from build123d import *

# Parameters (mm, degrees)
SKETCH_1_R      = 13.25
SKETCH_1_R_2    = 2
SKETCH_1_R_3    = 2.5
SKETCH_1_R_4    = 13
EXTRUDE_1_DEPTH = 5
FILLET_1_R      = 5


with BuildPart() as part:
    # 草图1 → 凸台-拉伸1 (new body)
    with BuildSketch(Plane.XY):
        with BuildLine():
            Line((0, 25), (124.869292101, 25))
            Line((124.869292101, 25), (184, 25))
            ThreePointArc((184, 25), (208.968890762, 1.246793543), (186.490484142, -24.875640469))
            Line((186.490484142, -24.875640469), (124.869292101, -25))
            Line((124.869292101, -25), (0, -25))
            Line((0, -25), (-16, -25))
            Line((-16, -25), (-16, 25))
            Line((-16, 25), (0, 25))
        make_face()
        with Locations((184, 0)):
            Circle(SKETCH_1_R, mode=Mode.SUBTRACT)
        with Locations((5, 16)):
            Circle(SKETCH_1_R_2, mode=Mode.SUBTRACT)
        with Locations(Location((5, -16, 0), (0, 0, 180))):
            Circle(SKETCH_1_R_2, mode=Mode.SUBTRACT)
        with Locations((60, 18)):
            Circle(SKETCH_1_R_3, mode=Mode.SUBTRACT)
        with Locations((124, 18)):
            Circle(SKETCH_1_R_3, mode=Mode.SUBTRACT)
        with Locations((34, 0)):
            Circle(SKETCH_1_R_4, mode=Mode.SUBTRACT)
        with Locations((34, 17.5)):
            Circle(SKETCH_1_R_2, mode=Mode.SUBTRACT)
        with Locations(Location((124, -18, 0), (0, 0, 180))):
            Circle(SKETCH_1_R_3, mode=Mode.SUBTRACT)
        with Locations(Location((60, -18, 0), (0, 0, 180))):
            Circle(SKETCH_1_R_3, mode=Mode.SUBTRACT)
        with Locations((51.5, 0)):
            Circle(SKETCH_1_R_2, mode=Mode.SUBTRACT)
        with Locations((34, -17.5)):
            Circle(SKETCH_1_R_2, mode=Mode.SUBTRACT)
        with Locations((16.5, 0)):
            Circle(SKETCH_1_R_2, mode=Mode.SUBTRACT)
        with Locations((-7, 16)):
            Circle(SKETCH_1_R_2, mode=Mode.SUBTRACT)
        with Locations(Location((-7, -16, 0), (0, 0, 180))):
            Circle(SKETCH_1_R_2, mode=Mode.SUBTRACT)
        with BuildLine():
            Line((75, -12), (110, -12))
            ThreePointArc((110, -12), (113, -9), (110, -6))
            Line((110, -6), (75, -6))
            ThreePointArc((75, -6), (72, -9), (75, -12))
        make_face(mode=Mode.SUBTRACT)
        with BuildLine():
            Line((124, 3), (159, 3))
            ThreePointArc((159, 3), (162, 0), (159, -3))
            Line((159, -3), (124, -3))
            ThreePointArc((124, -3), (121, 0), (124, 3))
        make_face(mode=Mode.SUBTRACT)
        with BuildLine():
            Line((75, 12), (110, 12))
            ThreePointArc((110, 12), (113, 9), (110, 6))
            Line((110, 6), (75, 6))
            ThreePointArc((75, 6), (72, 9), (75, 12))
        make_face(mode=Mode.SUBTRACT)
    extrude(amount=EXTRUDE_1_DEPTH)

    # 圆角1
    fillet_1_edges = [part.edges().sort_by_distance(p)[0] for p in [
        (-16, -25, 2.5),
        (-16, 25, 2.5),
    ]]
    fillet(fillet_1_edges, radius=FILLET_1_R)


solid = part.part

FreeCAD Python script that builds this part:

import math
import FreeCAD as App
import Part
import Sketcher

V = App.Vector
Q = App.Units.Quantity


def edges_at(feature, points):
    """Names of the edges that pass closest to the given points."""
    edges = feature.Shape.Edges
    near = lambda p: min(range(len(edges)), key=lambda i: edges[i].distToShape(Part.Vertex(*p))[0])
    return sorted({f"Edge{near(p) + 1}" for p in points})

doc = App.newDocument("Part")
body = doc.addObject("PartDesign::Body", "Body")

sketch1 = body.newObject("Sketcher::SketchObject", "Sketch")
sketch1.AttachmentSupport = (doc.getObject("XY_Plane"), [""])
sketch1.MapMode = "FlatFace"
sketch1.addGeometry(Part.ArcOfCircle(Part.Circle(V(184, 0, 0), V(0, 0, 1), 25), math.radians(-84), math.radians(90)), False)
sketch1.addGeometry(Part.LineSegment(V(184, 25, 0), V(-16, 25, 0)), False)
sketch1.addGeometry(Part.LineSegment(V(-16, 25, 0), V(-16, -25, 0)), False)
sketch1.addGeometry(Part.LineSegment(V(-16, -25, 0), V(124.9, -25, 0)), False)
sketch1.addGeometry(Part.LineSegment(V(124.9, -25, 0), V(186.5, -24.9, 0)), False)
sketch1.addGeometry(Part.Circle(V(124, -18, 0), V(0, 0, 1), 2.5), False)
sketch1.addGeometry(Part.Circle(V(60, -18, 0), V(0, 0, 1), 2.5), False)
sketch1.addGeometry(Part.Circle(V(34, -17.5, 0), V(0, 0, 1), 2), False)
sketch1.addGeometry(Part.Circle(V(5, -16, 0), V(0, 0, 1), 2), False)
sketch1.addGeometry(Part.Circle(V(-7, -16, 0), V(0, 0, 1), 2), False)
sketch1.addGeometry(Part.ArcOfCircle(Part.Circle(V(75, -9, 0), V(0, 0, 1), 3), math.radians(90), math.radians(270)), False)
sketch1.addGeometry(Part.LineSegment(V(75, -6, 0), V(110, -6, 0)), False)
sketch1.addGeometry(Part.ArcOfCircle(Part.Circle(V(110, -9, 0), V(0, 0, 1), 3), math.radians(-90), math.radians(90)), False)
sketch1.addGeometry(Part.LineSegment(V(110, -12, 0), V(75, -12, 0)), False)
sketch1.addGeometry(Part.Circle(V(184, 0, 0), V(0, 0, 1), 13.2), False)
sketch1.addGeometry(Part.LineSegment(V(124, 3, 0), V(159, 3, 0)), False)
sketch1.addGeometry(Part.ArcOfCircle(Part.Circle(V(159, 0, 0), V(0, 0, 1), 3), math.radians(-90), math.radians(90)), False)
sketch1.addGeometry(Part.LineSegment(V(159, -3, 0), V(124, -3, 0)), False)
sketch1.addGeometry(Part.ArcOfCircle(Part.Circle(V(124, 0, 0), V(0, 0, 1), 3), math.radians(90), math.radians(270)), False)
sketch1.addGeometry(Part.Circle(V(124, 18, 0), V(0, 0, 1), 2.5), False)
sketch1.addGeometry(Part.Circle(V(51.5, 0, 0), V(0, 0, 1), 2), False)
sketch1.addGeometry(Part.LineSegment(V(75, 12, 0), V(110, 12, 0)), False)
sketch1.addGeometry(Part.ArcOfCircle(Part.Circle(V(110, 9, 0), V(0, 0, 1), 3), math.radians(-90), math.radians(90)), False)
sketch1.addGeometry(Part.LineSegment(V(110, 6, 0), V(75, 6, 0)), False)
sketch1.addGeometry(Part.ArcOfCircle(Part.Circle(V(75, 9, 0), V(0, 0, 1), 3), math.radians(90), math.radians(270)), False)
sketch1.addGeometry(Part.Circle(V(34, 0, 0), V(0, 0, 1), 13), False)
sketch1.addGeometry(Part.Circle(V(16.5, 0, 0), V(0, 0, 1), 2), False)
sketch1.addGeometry(Part.Circle(V(60, 18, 0), V(0, 0, 1), 2.5), False)
sketch1.addGeometry(Part.Circle(V(34, 17.5, 0), V(0, 0, 1), 2), False)
sketch1.addGeometry(Part.Circle(V(5, 16, 0), V(0, 0, 1), 2), False)
sketch1.addGeometry(Part.Circle(V(-7, 16, 0), V(0, 0, 1), 2), False)
sketch1.addConstraint(Sketcher.Constraint("Tangent", 0, 2, 1, 1))
sketch1.addConstraint(Sketcher.Constraint("Coincident", 1, 2, 2, 1))
sketch1.addConstraint(Sketcher.Constraint("Coincident", 2, 2, 3, 1))
sketch1.addConstraint(Sketcher.Constraint("Coincident", 3, 2, 4, 1))
sketch1.addConstraint(Sketcher.Constraint("Coincident", 4, 2, 0, 1))
sketch1.addConstraint(Sketcher.Constraint("Tangent", 10, 1, 11, 1))
sketch1.addConstraint(Sketcher.Constraint("Tangent", 11, 2, 12, 2))
sketch1.addConstraint(Sketcher.Constraint("Tangent", 12, 1, 13, 1))
sketch1.addConstraint(Sketcher.Constraint("Tangent", 13, 2, 10, 2))
sketch1.addConstraint(Sketcher.Constraint("Tangent", 15, 2, 16, 2))
sketch1.addConstraint(Sketcher.Constraint("Tangent", 16, 1, 17, 1))
sketch1.addConstraint(Sketcher.Constraint("Tangent", 17, 2, 18, 2))
sketch1.addConstraint(Sketcher.Constraint("Tangent", 18, 1, 15, 1))
sketch1.addConstraint(Sketcher.Constraint("Tangent", 21, 2, 22, 2))
sketch1.addConstraint(Sketcher.Constraint("Tangent", 22, 1, 23, 1))
sketch1.addConstraint(Sketcher.Constraint("Tangent", 23, 2, 24, 2))
sketch1.addConstraint(Sketcher.Constraint("Tangent", 24, 1, 21, 1))
sketch1.addConstraint(Sketcher.Constraint("Horizontal", 1))
sketch1.addConstraint(Sketcher.Constraint("Vertical", 2))
sketch1.addConstraint(Sketcher.Constraint("Horizontal", 3))
sketch1.addConstraint(Sketcher.Constraint("Horizontal", 11))
sketch1.addConstraint(Sketcher.Constraint("Horizontal", 13))
sketch1.addConstraint(Sketcher.Constraint("Horizontal", 15))
sketch1.addConstraint(Sketcher.Constraint("Horizontal", 17))
sketch1.addConstraint(Sketcher.Constraint("Horizontal", 21))
sketch1.addConstraint(Sketcher.Constraint("Horizontal", 23))
sketch1.addConstraint(Sketcher.Constraint("Coincident", 14, 3, 0, 3))
sketch1.addConstraint(Sketcher.Constraint("Equal", 5, 6))
sketch1.addConstraint(Sketcher.Constraint("Equal", 7, 8))
sketch1.addConstraint(Sketcher.Constraint("Equal", 8, 9))
sketch1.addConstraint(Sketcher.Constraint("Equal", 12, 16))
sketch1.addConstraint(Sketcher.Constraint("Equal", 6, 19))
sketch1.addConstraint(Sketcher.Constraint("Equal", 9, 20))
sketch1.addConstraint(Sketcher.Constraint("Equal", 18, 22))
sketch1.addConstraint(Sketcher.Constraint("Equal", 20, 26))
sketch1.addConstraint(Sketcher.Constraint("Equal", 19, 27))
sketch1.addConstraint(Sketcher.Constraint("Equal", 26, 28))
sketch1.addConstraint(Sketcher.Constraint("Equal", 28, 29))
sketch1.addConstraint(Sketcher.Constraint("Equal", 29, 30))
sketch1.addConstraint(Sketcher.Constraint("Symmetric", 5, 3, 19, 3, -1))
sketch1.addConstraint(Sketcher.Constraint("Symmetric", 12, 3, 22, 3, -1))
sketch1.addConstraint(Sketcher.Constraint("Symmetric", 6, 3, 27, 3, -1))
sketch1.addConstraint(Sketcher.Constraint("Symmetric", 7, 3, 28, 3, -1))
sketch1.addConstraint(Sketcher.Constraint("Symmetric", 8, 3, 29, 3, -1))
sketch1.addConstraint(Sketcher.Constraint("Symmetric", 9, 3, 30, 3, -1))
sketch1.addConstraint(Sketcher.Constraint("PointOnObject", 0, 3, -1))
sketch1.addConstraint(Sketcher.Constraint("PointOnObject", 16, 3, -1))
sketch1.addConstraint(Sketcher.Constraint("PointOnObject", 20, 3, -1))
sketch1.addConstraint(Sketcher.Constraint("PointOnObject", 25, 3, -1))
sketch1.addConstraint(Sketcher.Constraint("PointOnObject", 26, 3, -1))
sketch1.addConstraint(Sketcher.Constraint("Horizontal", 5, 3, 6, 3))
sketch1.addConstraint(Sketcher.Constraint("Horizontal", 8, 3, 9, 3))
sketch1.addConstraint(Sketcher.Constraint("Vertical", 5, 3, 18, 3))
sketch1.addConstraint(Sketcher.Constraint("Vertical", 10, 3, 24, 3))
sketch1.addConstraint(Sketcher.Constraint("Vertical", 7, 3, 25, 3))
sketch1.addConstraint(Sketcher.Constraint("Equal", 13, 15))
sketch1.addConstraint(Sketcher.Constraint("Diameter", 5, Q("5 mm")))
sketch1.addConstraint(Sketcher.Constraint("Diameter", 7, Q("4 mm")))
sketch1.addConstraint(Sketcher.Constraint("Diameter", 25, Q("26 mm")))
sketch1.addConstraint(Sketcher.Constraint("Radius", 0, Q("25 mm")))
sketch1.addConstraint(Sketcher.Constraint("Radius", 10, Q("3 mm")))
sketch1.addConstraint(Sketcher.Constraint("Diameter", 14, Q("26.5 mm")))
sketch1.addConstraint(Sketcher.Constraint("DistanceX", 1, 2, 1, 1, Q("200 mm")))
sketch1.addConstraint(Sketcher.Constraint("DistanceX", 11, 1, 11, 2, Q("35 mm")))
sketch1.addConstraint(Sketcher.Constraint("DistanceY", 2, 2, 2, 1, Q("50 mm")))
sketch1.addConstraint(Sketcher.Constraint("DistanceX", -1, 1, 0, 3, Q("184 mm")))
sketch1.addConstraint(Sketcher.Constraint("DistanceX", -1, 1, 5, 3, Q("124 mm")))
sketch1.addConstraint(Sketcher.Constraint("DistanceY", 5, 3, -1, 1, Q("18 mm")))
sketch1.addConstraint(Sketcher.Constraint("DistanceX", -1, 1, 6, 3, Q("60 mm")))
sketch1.addConstraint(Sketcher.Constraint("DistanceX", -1, 1, 7, 3, Q("34 mm")))
sketch1.addConstraint(Sketcher.Constraint("DistanceX", -1, 1, 8, 3, Q("5 mm")))
sketch1.addConstraint(Sketcher.Constraint("DistanceY", 8, 3, -1, 1, Q("16 mm")))
sketch1.addConstraint(Sketcher.Constraint("DistanceX", 9, 3, -1, 1, Q("7 mm")))
sketch1.addConstraint(Sketcher.Constraint("DistanceX", -1, 1, 10, 3, Q("75 mm")))
sketch1.addConstraint(Sketcher.Constraint("DistanceY", 10, 3, -1, 1, Q("9 mm")))
sketch1.addConstraint(Sketcher.Constraint("DistanceX", 26, 3, 20, 3, Q("35 mm")))
sketch1.addConstraint(Sketcher.Constraint("DistanceY", 7, 3, 28, 3, Q("35 mm")))
sketch1.addConstraint(Sketcher.Constraint("DistanceX", -1, 1, 20, 3, Q("51.5 mm")))
sketch1.addConstraint(Sketcher.Constraint("DistanceX", 3, 1, 3, 2, Q("140.869292 mm")))
sketch1.addConstraint(Sketcher.Constraint("DistanceY", 4, 2, -1, 1, Q("24.87564 mm")))
pad1 = body.newObject("PartDesign::Pad", "Pad")
pad1.Profile = sketch1
pad1.Length = 5
doc.recompute()

fillet = body.newObject("PartDesign::Fillet", "Fillet")
fillet.Base = (pad1, edges_at(pad1, [(-16, -25, 2.5), (-16, 25, 2.5)]))
fillet.Radius = 5

doc.recompute()
